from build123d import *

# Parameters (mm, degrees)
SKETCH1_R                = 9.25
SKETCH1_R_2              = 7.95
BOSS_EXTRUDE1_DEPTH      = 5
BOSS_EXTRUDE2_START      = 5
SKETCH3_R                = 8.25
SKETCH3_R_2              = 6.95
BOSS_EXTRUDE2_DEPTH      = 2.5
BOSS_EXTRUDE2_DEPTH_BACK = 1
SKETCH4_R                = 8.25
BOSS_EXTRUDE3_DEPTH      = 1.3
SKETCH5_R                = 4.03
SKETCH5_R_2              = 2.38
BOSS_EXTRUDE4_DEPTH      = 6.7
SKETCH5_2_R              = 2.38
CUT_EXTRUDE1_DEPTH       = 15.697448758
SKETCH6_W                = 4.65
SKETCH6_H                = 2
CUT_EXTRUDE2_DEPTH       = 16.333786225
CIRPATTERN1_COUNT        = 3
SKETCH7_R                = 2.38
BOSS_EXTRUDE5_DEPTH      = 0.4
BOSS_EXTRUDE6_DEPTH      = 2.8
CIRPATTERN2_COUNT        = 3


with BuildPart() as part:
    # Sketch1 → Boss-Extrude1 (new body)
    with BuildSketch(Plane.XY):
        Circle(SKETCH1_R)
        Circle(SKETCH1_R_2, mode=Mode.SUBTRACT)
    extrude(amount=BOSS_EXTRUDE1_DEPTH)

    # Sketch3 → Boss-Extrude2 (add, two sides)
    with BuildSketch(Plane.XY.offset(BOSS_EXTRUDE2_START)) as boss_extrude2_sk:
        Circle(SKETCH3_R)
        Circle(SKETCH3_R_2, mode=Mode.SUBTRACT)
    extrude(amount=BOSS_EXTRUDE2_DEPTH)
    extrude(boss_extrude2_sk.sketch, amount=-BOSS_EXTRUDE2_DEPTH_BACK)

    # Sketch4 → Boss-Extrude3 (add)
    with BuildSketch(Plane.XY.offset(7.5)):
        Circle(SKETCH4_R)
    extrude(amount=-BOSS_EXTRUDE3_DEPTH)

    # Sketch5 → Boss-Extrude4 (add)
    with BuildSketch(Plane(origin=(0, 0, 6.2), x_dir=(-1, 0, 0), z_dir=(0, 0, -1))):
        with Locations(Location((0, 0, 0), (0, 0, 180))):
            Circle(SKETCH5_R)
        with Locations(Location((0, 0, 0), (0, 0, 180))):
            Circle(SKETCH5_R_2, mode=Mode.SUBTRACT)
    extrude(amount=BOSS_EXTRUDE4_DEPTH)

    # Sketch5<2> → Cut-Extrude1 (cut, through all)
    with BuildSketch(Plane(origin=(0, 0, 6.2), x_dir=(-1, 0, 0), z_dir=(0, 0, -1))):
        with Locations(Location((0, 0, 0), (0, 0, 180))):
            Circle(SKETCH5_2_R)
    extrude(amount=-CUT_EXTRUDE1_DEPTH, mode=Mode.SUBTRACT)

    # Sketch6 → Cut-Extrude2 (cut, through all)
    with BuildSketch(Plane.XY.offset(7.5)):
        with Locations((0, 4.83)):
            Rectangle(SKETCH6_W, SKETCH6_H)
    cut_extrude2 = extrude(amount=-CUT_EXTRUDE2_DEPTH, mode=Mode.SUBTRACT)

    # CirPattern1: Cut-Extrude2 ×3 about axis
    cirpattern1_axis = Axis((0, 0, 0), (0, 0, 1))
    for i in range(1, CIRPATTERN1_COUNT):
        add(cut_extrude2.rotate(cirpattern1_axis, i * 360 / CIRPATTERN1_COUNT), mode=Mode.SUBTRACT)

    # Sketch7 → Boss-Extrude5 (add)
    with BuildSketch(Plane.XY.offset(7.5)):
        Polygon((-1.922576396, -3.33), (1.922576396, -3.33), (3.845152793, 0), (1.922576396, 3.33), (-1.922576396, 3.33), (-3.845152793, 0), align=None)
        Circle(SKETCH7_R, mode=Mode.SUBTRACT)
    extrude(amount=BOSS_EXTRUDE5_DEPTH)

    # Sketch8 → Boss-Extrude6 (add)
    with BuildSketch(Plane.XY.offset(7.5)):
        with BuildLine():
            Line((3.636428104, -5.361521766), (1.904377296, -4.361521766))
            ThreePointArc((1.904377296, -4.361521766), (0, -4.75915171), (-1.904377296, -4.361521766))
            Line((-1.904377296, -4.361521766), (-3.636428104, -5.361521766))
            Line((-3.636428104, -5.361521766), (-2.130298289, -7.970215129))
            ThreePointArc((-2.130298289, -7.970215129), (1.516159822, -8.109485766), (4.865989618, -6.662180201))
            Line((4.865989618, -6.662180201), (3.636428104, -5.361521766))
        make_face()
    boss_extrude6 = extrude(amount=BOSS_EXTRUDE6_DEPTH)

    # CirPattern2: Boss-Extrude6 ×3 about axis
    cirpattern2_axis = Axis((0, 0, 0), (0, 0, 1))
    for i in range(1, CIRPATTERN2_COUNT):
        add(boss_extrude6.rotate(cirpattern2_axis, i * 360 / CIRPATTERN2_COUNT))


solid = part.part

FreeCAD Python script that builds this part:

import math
import FreeCAD as App
import Part
import Sketcher
Q = App.Units.Quantity

doc = App.newDocument("Part")
params = doc.addObject("Spreadsheet::Sheet", "Params")
for row, (alias, value) in enumerate([
    ("sketch1_diameter", "18.5 mm"),
    ("sketch1_diameter2", "15.9 mm"),
    ("pad1_length", "5 mm"),
    ("sketch2_diameter", "16.5 mm"),
    ("sketch2_diameter2", "13.9 mm"),
    ("pad2_length", "2.5 mm"),
    ("pad2_length2", "1 mm"),
    ("sketch3_diameter", "16.5 mm"),
    ("pad3_length", "1.3 mm"),
    ("sketch4_diameter", "8.06 mm"),
    ("sketch4_diameter2", "4.76 mm"),
    ("pad4_length", "6.7 mm"),
    ("sketch5_diameter", "4.76 mm"),
    ("sketch6_height", "2 mm"),
    ("sketch6_width", "4.65 mm"),
    ("sketch7_diameter", "4.76 mm"),
    ("pad5_length", "0.4 mm"),
    ("sketch8_radius", "8.25 mm"),
    ("sketch8_length", "2 mm"),
    ("pad6_length", "2.8 mm"),
], start=1):
    params.set(f"A{row}", alias)
    params.set(f"B{row}", "=" + value)
    params.setAlias(f"B{row}", alias)

body = doc.addObject("PartDesign::Body", "Body")

sketch1 = body.newObject("Sketcher::SketchObject", "Sketch")
sketch1.AttachmentSupport = (doc.getObject("XY_Plane"), [""])
sketch1.MapMode = "FlatFace"
sketch1.addGeometry(Part.Circle(App.Vector(0, 0, 0), App.Vector(0, 0, 1), 9.25), False)
sketch1.addGeometry(Part.Circle(App.Vector(0, 0, 0), App.Vector(0, 0, 1), 7.95), False)
sketch1.addConstraint(Sketcher.Constraint("Coincident", 0, 3, -1, 1))
sketch1.addConstraint(Sketcher.Constraint("Coincident", 1, 3, -1, 1))
sketch1.addConstraint(Sketcher.Constraint("Diameter", 0, Q("18.5 mm")))
sketch1.addConstraint(Sketcher.Constraint("Diameter", 1, Q("15.9 mm")))
sketch1.setExpression("Constraints[2]", "Params.sketch1_diameter")
sketch1.setExpression("Constraints[3]", "Params.sketch1_diameter2")
pad1 = body.newObject("PartDesign::Pad", "Pad")
pad1.Profile = sketch1
pad1.setExpression("Length", "Params.pad1_length")

sketch2 = body.newObject("Sketcher::SketchObject", "Sketch001")
sketch2.AttachmentSupport = (doc.getObject("XY_Plane"), [""])
sketch2.MapMode = "FlatFace"
sketch2.AttachmentOffset = App.Placement(App.Vector(0, 0, 5), App.Rotation())
sketch2.addGeometry(Part.Circle(App.Vector(0, 0, 0), App.Vector(0, 0, 1), 8.25), False)
sketch2.addGeometry(Part.Circle(App.Vector(0, 0, 0), App.Vector(0, 0, 1), 6.95), False)
sketch2.addConstraint(Sketcher.Constraint("Coincident", 0, 3, -1, 1))
sketch2.addConstraint(Sketcher.Constraint("Coincident", 1, 3, -1, 1))
sketch2.addConstraint(Sketcher.Constraint("Diameter", 0, Q("16.5 mm")))
sketch2.addConstraint(Sketcher.Constraint("Diameter", 1, Q("13.9 mm")))
sketch2.setExpression("Constraints[2]", "Params.sketch2_diameter")
sketch2.setExpression("Constraints[3]", "Params.sketch2_diameter2")
pad2 = body.newObject("PartDesign::Pad", "Pad001")
pad2.Profile = sketch2
pad2.Type = "TwoLengths"
pad2.setExpression("Length", "Params.pad2_length")
pad2.setExpression("Length2", "Params.pad2_length2")

sketch3 = body.newObject("Sketcher::SketchObject", "Sketch002")
sketch3.AttachmentSupport = (doc.getObject("XY_Plane"), [""])
sketch3.MapMode = "FlatFace"
sketch3.AttachmentOffset = App.Placement(App.Vector(0, 0, 7.5), App.Rotation())
sketch3.addGeometry(Part.Circle(App.Vector(0, 0, 0), App.Vector(0, 0, 1), 8.25), False)
sketch3.addConstraint(Sketcher.Constraint("Coincident", 0, 3, -1, 1))
sketch3.addConstraint(Sketcher.Constraint("Diameter", 0, Q("16.5 mm")))
sketch3.setExpression("Constraints[1]", "Params.sketch3_diameter")
pad3 = body.newObject("PartDesign::Pad", "Pad002")
pad3.Profile = sketch3
pad3.setExpression("Length", "Params.pad3_length")
pad3.Reversed = True

sketch4 = body.newObject("Sketcher::SketchObject", "Sketch003")
sketch4.AttachmentSupport = (doc.getObject("XY_Plane"), [""])
sketch4.MapMode = "FlatFace"
sketch4.AttachmentOffset = App.Placement(App.Vector(0, 0, 6.2), App.Rotation())
sketch4.addGeometry(Part.Circle(App.Vector(0, 0, 0), App.Vector(0, 0, 1), 4.03), False)
sketch4.addGeometry(Part.Circle(App.Vector(0, 0, 0), App.Vector(0, 0, 1), 2.38), False)
sketch4.addConstraint(Sketcher.Constraint("Coincident", 0, 3, -1, 1))
sketch4.addConstraint(Sketcher.Constraint("Coincident", 1, 3, -1, 1))
sketch4.addConstraint(Sketcher.Constraint("Diameter", 0, Q("8.06 mm")))
sketch4.addConstraint(Sketcher.Constraint("Diameter", 1, Q("4.76 mm")))
sketch4.setExpression("Constraints[2]", "Params.sketch4_diameter")
sketch4.setExpression("Constraints[3]", "Params.sketch4_diameter2")
pad4 = body.newObject("PartDesign::Pad", "Pad003")
pad4.Profile = sketch4
pad4.setExpression("Length", "Params.pad4_length")
pad4.Reversed = True

sketch5 = body.newObject("Sketcher::SketchObject", "Sketch004")
sketch5.AttachmentSupport = (doc.getObject("XY_Plane"), [""])
sketch5.MapMode = "FlatFace"
sketch5.AttachmentOffset = App.Placement(App.Vector(0, 0, 6.2), App.Rotation())
sketch5.addGeometry(Part.Circle(App.Vector(0, 0, 0), App.Vector(0, 0, 1), 2.38), False)
sketch5.addConstraint(Sketcher.Constraint("Coincident", 0, 3, -1, 1))
sketch5.addConstraint(Sketcher.Constraint("Diameter", 0, Q("4.76 mm")))
sketch5.setExpression("Constraints[1]", "Params.sketch5_diameter")
pocket1 = body.newObject("PartDesign::Pocket", "Pocket")
pocket1.Profile = sketch5
pocket1.Type = "ThroughAll"
pocket1.Reversed = True

sketch6 = body.newObject("Sketcher::SketchObject", "Sketch005")
sketch6.AttachmentSupport = (doc.getObject("XY_Plane"), [""])
sketch6.MapMode = "FlatFace"
sketch6.AttachmentOffset = App.Placement(App.Vector(0, 0, 7.5), App.Rotation())
sketch6.addGeometry(Part.LineSegment(App.Vector(-2.325, 5.83, 0), App.Vector(-2.325, 3.83, 0)), False)
sketch6.addGeometry(Part.LineSegment(App.Vector(-2.325, 3.83, 0), App.Vector(2.325, 3.83, 0)), False)
sketch6.addGeometry(Part.LineSegment(App.Vector(2.325, 3.83, 0), App.Vector(2.325, 5.83, 0)), False)
sketch6.addGeometry(Part.LineSegment(App.Vector(2.325, 5.83, 0), App.Vector(-2.325, 5.83, 0)), False)
sketch6.addConstraint(Sketcher.Constraint("Coincident", 0, 2, 1, 1))
sketch6.addConstraint(Sketcher.Constraint("Coincident", 1, 2, 2, 1))
sketch6.addConstraint(Sketcher.Constraint("Coincident", 2, 2, 3, 1))
sketch6.addConstraint(Sketcher.Constraint("Coincident", 3, 2, 0, 1))
sketch6.addConstraint(Sketcher.Constraint("Vertical", 0))
sketch6.addConstraint(Sketcher.Constraint("Horizontal", 1))
sketch6.addConstraint(Sketcher.Constraint("Vertical", 2))
sketch6.addConstraint(Sketcher.Constraint("Horizontal", 3))
sketch6.addConstraint(Sketcher.Constraint("DistanceY", 0, 2, 0, 1, Q("2 mm")))
sketch6.addConstraint(Sketcher.Constraint("DistanceX", 1, 1, 1, 2, Q("4.65 mm")))
sketch6.addConstraint(Sketcher.Constraint("DistanceY", -1, 1, 0, 2, Q("3.83 mm")))
sketch6.addConstraint(Sketcher.Constraint("DistanceX", 0, 2, -1, 1, Q("2.325 mm")))
sketch6.setExpression("Constraints[8]", "Params.sketch6_height")
sketch6.setExpression("Constraints[9]", "Params.sketch6_width")
pocket2 = body.newObject("PartDesign::Pocket", "Pocket001")
pocket2.Profile = sketch6
pocket2.Type = "ThroughAll"
doc.recompute()

polarpattern = body.newObject("PartDesign::PolarPattern", "PolarPattern")
polarpattern.Originals = [pocket2]
polarpattern.Axis = (doc.getObject("Z_Axis"), [""])
polarpattern.Angle = 360
polarpattern.Occurrences = 3
body.Tip = polarpattern

sketch7 = body.newObject("Sketcher::SketchObject", "Sketch006")
sketch7.AttachmentSupport = (doc.getObject("XY_Plane"), [""])
sketch7.MapMode = "FlatFace"
sketch7.AttachmentOffset = App.Placement(App.Vector(0, 0, 7.5), App.Rotation())
sketch7.addGeometry(Part.LineSegment(App.Vector(-1.922576, -3.33, 0), App.Vector(1.922576, -3.33, 0)), False)
sketch7.addGeometry(Part.LineSegment(App.Vector(1.922576, -3.33, 0), App.Vector(3.845153, 0, 0)), False)
sketch7.addGeometry(Part.LineSegment(App.Vector(3.845153, 0, 0), App.Vector(1.922576, 3.33, 0)), False)
sketch7.addGeometry(Part.LineSegment(App.Vector(1.922576, 3.33, 0), App.Vector(-1.922576, 3.33, 0)), False)
sketch7.addGeometry(Part.LineSegment(App.Vector(-1.922576, 3.33, 0), App.Vector(-3.845153, 0, 0)), False)
sketch7.addGeometry(Part.LineSegment(App.Vector(-3.845153, 0, 0), App.Vector(-1.922576, -3.33, 0)), False)
sketch7.addGeometry(Part.Circle(App.Vector(0, 0, 0), App.Vector(0, 0, 1), 2.38), False)
sketch7.addConstraint(Sketcher.Constraint("Coincident", 0, 2, 1, 1))
sketch7.addConstraint(Sketcher.Constraint("Coincident", 1, 2, 2, 1))
sketch7.addConstraint(Sketcher.Constraint("Coincident", 2, 2, 3, 1))
sketch7.addConstraint(Sketcher.Constraint("Coincident", 3, 2, 4, 1))
sketch7.addConstraint(Sketcher.Constraint("Coincident", 4, 2, 5, 1))
sketch7.addConstraint(Sketcher.Constraint("Coincident", 5, 2, 0, 1))
sketch7.addConstraint(Sketcher.Constraint("Horizontal", 0))
sketch7.addConstraint(Sketcher.Constraint("Horizontal", 3))
sketch7.addConstraint(Sketcher.Constraint("Coincident", 6, 3, -1, 1))
sketch7.addConstraint(Sketcher.Constraint("Symmetric", 0, 2, 3, 2, -1, 1))
sketch7.addConstraint(Sketcher.Constraint("Symmetric", 1, 2, 4, 2, -1, 1))
sketch7.addConstraint(Sketcher.Constraint("PointOnObject", 1, 2, -1))
sketch7.addConstraint(Sketcher.Constraint("Parallel", 2, 5))
sketch7.addConstraint(Sketcher.Constraint("Vertical", 0, 2, 2, 2))
sketch7.addConstraint(Sketcher.Constraint("Diameter", 6, Q("4.76 mm")))
sketch7.addConstraint(Sketcher.Constraint("Angle", 1, Q("60 deg")))
sketch7.addConstraint(Sketcher.Constraint("DistanceY", 0, 2, -1, 1, Q("3.33 mm")))
sketch7.addConstraint(Sketcher.Constraint("DistanceX", 0, 1, 0, 2, Q("3.845153 mm")))
sketch7.setExpression("Constraints[14]", "Params.sketch7_diameter")
pad5 = body.newObject("PartDesign::Pad", "Pad004")
pad5.Profile = sketch7
pad5.setExpression("Length", "Params.pad5_length")

sketch8 = body.newObject("Sketcher::SketchObject", "Sketch007")
sketch8.AttachmentSupport = (doc.getObject("XY_Plane"), [""])
sketch8.MapMode = "FlatFace"
sketch8.AttachmentOffset = App.Placement(App.Vector(0, 0, 7.5), App.Rotation())
sketch8.addGeometry(Part.LineSegment(App.Vector(3.636428, -5.361522, 0), App.Vector(1.904377, -4.361522, 0)), False)
sketch8.addGeometry(Part.ArcOfCircle(Part.Circle(App.Vector(0, 0, 0), App.Vector(0, 0, 1), 4.759152), math.radians(-113.587592), math.radians(-66.412408)), False)
sketch8.addGeometry(Part.LineSegment(App.Vector(-1.904377, -4.361522, 0), App.Vector(-3.636428, -5.361522, 0)), False)
sketch8.addGeometry(Part.LineSegment(App.Vector(-3.636428, -5.361522, 0), App.Vector(-2.130298, -7.970215, 0)), False)
sketch8.addGeometry(Part.ArcOfCircle(Part.Circle(App.Vector(0, 0, 0), App.Vector(0, 0, 1), 8.25), math.radians(-104.964349), math.radians(-53.855982)), False)
sketch8.addGeometry(Part.LineSegment(App.Vector(4.86599, -6.66218, 0), App.Vector(3.636428, -5.361522, 0)), False)
sketch8.addConstraint(Sketcher.Constraint("Coincident", 0, 2, 1, 2))
sketch8.addConstraint(Sketcher.Constraint("Coincident", 1, 1, 2, 1))
sketch8.addConstraint(Sketcher.Constraint("Coincident", 2, 2, 3, 1))
sketch8.addConstraint(Sketcher.Constraint("Coincident", 3, 2, 4, 1))
sketch8.addConstraint(Sketcher.Constraint("Coincident", 4, 2, 5, 1))
sketch8.addConstraint(Sketcher.Constraint("Coincident", 5, 2, 0, 1))
sketch8.addConstraint(Sketcher.Constraint("Coincident", 1, 3, -1, 1))
sketch8.addConstraint(Sketcher.Constraint("Coincident", 4, 3, -1, 1))
sketch8.addConstraint(Sketcher.Constraint("Symmetric", 2, 2, 5, 2, -2))
sketch8.addConstraint(Sketcher.Constraint("Perpendicular", 2, 3))
sketch8.addConstraint(Sketcher.Constraint("Horizontal", 0, 2, 1, 1))
sketch8.addConstraint(Sketcher.Constraint("Angle", 0, Q("150 deg")))
sketch8.addConstraint(Sketcher.Constraint("Radius", 4, Q("8.25 mm")))
sketch8.addConstraint(Sketcher.Constraint("Distance", 0, Q("2 mm")))
sketch8.addConstraint(Sketcher.Constraint("Radius", 1, Q("4.759152 mm")))
sketch8.addConstraint(Sketcher.Constraint("DistanceX", 3, 2, -1, 1, Q("2.130298 mm")))
sketch8.addConstraint(Sketcher.Constraint("Distance", 5, Q("1.789842 mm")))
sketch8.setExpression("Constraints[12]", "Params.sketch8_radius")
sketch8.setExpression("Constraints[13]", "Params.sketch8_length")
pad6 = body.newObject("PartDesign::Pad", "Pad005")
pad6.Profile = sketch8
pad6.setExpression("Length", "Params.pad6_length")
doc.recompute()

polarpattern2 = body.newObject("PartDesign::PolarPattern", "PolarPattern001")
polarpattern2.Originals = [pad6]
polarpattern2.Axis = (doc.getObject("Z_Axis"), [""])
polarpattern2.Angle = 360
polarpattern2.Occurrences = 3
body.Tip = polarpattern2

doc.recompute()
